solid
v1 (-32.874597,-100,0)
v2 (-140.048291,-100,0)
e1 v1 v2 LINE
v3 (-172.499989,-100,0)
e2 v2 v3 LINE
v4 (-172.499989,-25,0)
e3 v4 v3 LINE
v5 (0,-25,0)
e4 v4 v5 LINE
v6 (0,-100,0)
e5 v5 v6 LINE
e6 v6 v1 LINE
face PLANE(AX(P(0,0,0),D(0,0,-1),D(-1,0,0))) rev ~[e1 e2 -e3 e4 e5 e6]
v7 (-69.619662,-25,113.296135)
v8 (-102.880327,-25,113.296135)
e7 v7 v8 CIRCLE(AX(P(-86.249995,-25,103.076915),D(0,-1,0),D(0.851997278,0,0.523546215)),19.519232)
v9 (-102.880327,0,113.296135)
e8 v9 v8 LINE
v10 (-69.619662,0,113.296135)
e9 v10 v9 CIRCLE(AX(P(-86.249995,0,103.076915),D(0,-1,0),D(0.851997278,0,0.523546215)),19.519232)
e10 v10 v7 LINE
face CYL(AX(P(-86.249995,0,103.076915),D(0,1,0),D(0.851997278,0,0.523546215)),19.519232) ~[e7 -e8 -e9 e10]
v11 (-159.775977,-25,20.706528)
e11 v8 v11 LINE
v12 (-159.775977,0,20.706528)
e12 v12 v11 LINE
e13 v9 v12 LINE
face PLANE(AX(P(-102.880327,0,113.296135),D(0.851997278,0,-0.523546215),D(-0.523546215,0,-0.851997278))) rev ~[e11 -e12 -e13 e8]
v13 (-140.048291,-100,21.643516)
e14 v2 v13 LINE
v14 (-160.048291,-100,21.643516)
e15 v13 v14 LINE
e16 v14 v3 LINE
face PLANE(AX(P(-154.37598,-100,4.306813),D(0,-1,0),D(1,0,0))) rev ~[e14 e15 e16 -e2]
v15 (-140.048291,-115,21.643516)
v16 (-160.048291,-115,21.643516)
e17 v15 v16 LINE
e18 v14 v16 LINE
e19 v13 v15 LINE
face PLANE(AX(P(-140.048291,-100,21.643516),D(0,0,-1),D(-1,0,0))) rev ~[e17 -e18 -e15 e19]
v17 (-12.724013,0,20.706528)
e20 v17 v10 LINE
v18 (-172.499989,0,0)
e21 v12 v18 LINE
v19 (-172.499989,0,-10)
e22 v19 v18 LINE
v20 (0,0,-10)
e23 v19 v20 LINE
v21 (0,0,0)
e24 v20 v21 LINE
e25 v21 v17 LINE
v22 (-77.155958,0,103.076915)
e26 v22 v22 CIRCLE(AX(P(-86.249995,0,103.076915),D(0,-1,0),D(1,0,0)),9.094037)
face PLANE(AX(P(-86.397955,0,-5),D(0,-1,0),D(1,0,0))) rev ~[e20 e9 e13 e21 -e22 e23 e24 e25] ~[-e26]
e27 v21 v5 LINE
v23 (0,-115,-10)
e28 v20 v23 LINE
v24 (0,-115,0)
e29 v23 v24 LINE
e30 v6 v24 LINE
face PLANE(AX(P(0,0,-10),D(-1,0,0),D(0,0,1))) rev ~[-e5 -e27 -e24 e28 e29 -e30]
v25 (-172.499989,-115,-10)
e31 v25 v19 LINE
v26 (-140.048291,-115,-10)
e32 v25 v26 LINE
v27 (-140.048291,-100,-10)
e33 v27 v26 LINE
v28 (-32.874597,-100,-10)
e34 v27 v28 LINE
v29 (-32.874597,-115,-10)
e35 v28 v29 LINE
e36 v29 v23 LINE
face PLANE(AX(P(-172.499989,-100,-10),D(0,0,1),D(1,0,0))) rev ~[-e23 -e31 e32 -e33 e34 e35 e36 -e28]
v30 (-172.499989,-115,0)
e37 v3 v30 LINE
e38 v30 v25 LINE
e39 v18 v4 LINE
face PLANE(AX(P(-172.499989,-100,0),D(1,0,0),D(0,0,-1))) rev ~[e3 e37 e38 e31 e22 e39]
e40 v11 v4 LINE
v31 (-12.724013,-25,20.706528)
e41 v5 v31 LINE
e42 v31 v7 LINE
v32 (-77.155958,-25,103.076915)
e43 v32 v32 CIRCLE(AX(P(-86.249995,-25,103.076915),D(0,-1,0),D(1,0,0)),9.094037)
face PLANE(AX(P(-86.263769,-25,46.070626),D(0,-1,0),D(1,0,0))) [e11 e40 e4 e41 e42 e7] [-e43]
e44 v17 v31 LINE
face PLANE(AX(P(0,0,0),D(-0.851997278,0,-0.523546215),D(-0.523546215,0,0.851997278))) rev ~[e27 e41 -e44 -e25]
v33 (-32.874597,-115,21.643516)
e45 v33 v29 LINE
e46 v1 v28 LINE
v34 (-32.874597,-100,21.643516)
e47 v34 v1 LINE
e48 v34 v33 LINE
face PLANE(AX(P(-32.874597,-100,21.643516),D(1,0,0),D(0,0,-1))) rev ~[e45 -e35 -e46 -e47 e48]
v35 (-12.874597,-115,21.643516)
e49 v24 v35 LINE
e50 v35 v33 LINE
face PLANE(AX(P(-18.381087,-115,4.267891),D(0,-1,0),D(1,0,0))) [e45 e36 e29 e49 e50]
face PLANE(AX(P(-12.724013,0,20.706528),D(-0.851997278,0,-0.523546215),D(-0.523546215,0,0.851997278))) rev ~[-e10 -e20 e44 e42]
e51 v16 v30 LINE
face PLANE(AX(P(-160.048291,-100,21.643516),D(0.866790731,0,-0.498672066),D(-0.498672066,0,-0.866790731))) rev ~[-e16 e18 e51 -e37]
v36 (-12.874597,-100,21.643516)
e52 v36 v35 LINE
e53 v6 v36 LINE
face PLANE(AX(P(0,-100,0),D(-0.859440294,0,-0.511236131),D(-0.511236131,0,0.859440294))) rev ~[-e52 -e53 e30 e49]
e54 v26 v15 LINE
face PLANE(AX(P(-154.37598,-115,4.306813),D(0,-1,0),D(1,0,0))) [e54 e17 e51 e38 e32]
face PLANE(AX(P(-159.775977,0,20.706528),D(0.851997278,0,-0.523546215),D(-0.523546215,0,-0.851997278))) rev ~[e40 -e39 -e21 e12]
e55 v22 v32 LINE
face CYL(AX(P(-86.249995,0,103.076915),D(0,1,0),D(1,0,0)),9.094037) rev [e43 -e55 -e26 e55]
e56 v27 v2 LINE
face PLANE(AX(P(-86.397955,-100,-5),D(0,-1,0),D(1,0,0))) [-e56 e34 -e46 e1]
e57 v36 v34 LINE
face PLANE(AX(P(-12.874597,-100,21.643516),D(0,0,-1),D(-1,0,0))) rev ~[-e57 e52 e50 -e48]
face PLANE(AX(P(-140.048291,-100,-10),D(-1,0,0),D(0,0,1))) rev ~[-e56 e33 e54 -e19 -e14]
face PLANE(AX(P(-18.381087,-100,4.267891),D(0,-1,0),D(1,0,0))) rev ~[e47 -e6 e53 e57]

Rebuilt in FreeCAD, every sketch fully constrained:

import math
import FreeCAD as App
import Part
import Sketcher

V = App.Vector
Q = App.Units.Quantity

doc = App.newDocument("Part")
params = doc.addObject("Spreadsheet::Sheet", "Params")
for row, (alias, value) in enumerate([
    ("pad1_length", "25 mm"),
    ("sketch2_height", "10 mm"),
    ("pad2_length", "100 mm"),
    ("sketch3_width", "20 mm"),
    ("sketch3_height", "10 mm"),
    ("pad3_length", "15 mm"),
], start=1):
    params.set(f"A{row}", alias)
    params.set(f"B{row}", "=" + value)
    params.setAlias(f"B{row}", alias)

body = doc.addObject("PartDesign::Body", "Body")

# Sketch on XZ plane
sketch1 = doc.addObject("Sketcher::SketchObject", "Sketch")
body.addObject(sketch1)
sketch1.AttachmentSupport = (doc.XZ_Plane, [""])
sketch1.MapMode = "FlatFace"
sketch1.addGeometry(Part.LineSegment(V(-13, 21, 0), V(-70, 113, 0)), False)
sketch1.addGeometry(Part.ArcOfCircle(Part.Circle(V(-86, 103, 0), V(0, 0, 1), 20), math.radians(32), math.radians(148)), False)
sketch1.addGeometry(Part.LineSegment(V(-103, 113, 0), V(-160, 21, 0)), False)
sketch1.addGeometry(Part.LineSegment(V(-160, 21, 0), V(-172, 0, 0)), False)
sketch1.addGeometry(Part.LineSegment(V(-172, 0, 0), V(0, 0, 0)), False)
sketch1.addGeometry(Part.LineSegment(V(0, 0, 0), V(-13, 21, 0)), False)
sketch1.addGeometry(Part.Circle(V(-86, 103, 0), V(0, 0, 1), 9), False)
sketch1.addConstraint(Sketcher.Constraint("Tangent", 0, 2, 1, 1))
sketch1.addConstraint(Sketcher.Constraint("Tangent", 1, 2, 2, 1))
sketch1.addConstraint(Sketcher.Constraint("Coincident", 2, 2, 3, 1))
sketch1.addConstraint(Sketcher.Constraint("Coincident", 3, 2, 4, 1))
sketch1.addConstraint(Sketcher.Constraint("Coincident", 4, 2, 5, 1))
sketch1.addConstraint(Sketcher.Constraint("Coincident", 5, 2, 0, 1))
sketch1.addConstraint(Sketcher.Constraint("Horizontal", 4))
sketch1.addConstraint(Sketcher.Constraint("Coincident", 4, 2, -1, 1))
sketch1.addConstraint(Sketcher.Constraint("Coincident", 6, 3, 1, 3))
sketch1.addConstraint(Sketcher.Constraint("Parallel", 2, 3))
sketch1.addConstraint(Sketcher.Constraint("Parallel", 0, 5))
sketch1.addConstraint(Sketcher.Constraint("Horizontal", 0, 2, 1, 2))
sketch1.addConstraint(Sketcher.Constraint("Horizontal", 2, 2, 5, 2))
sketch1.addConstraint(Sketcher.Constraint("Radius", 1, Q("19.519232 mm")))
sketch1.addConstraint(Sketcher.Constraint("Diameter", 6, Q("18.188073 mm")))
sketch1.addConstraint(Sketcher.Constraint("DistanceX", 4, 1, 4, 2, Q("172.499989 mm")))
sketch1.addConstraint(Sketcher.Constraint("DistanceY", 1, 3, 0, 2, Q("10.21922 mm")))
sketch1.addConstraint(Sketcher.Constraint("DistanceX", 2, 2, 1, 2, Q("56.89565 mm")))
pad1 = doc.addObject("PartDesign::Pad", "Pad")
body.addObject(pad1)
pad1.Profile = sketch1
pad1.setExpression("Length", "Params.pad1_length")

# Sketch on XZ plane
sketch2 = doc.addObject("Sketcher::SketchObject", "Sketch001")
body.addObject(sketch2)
sketch2.AttachmentSupport = (doc.XZ_Plane, [""])
sketch2.MapMode = "FlatFace"
sketch2.addGeometry(Part.LineSegment(V(-172, 0, 0), V(-172, -10, 0)), False)
sketch2.addGeometry(Part.LineSegment(V(-172, -10, 0), V(0, -10, 0)), False)
sketch2.addGeometry(Part.LineSegment(V(0, -10, 0), V(0, 0, 0)), False)
sketch2.addGeometry(Part.LineSegment(V(0, 0, 0), V(-172, 0, 0)), False)
sketch2.addConstraint(Sketcher.Constraint("Coincident", 0, 2, 1, 1))
sketch2.addConstraint(Sketcher.Constraint("Coincident", 1, 2, 2, 1))
sketch2.addConstraint(Sketcher.Constraint("Coincident", 2, 2, 3, 1))
sketch2.addConstraint(Sketcher.Constraint("Coincident", 3, 2, 0, 1))
sketch2.addConstraint(Sketcher.Constraint("Vertical", 0))
sketch2.addConstraint(Sketcher.Constraint("Horizontal", 1))
sketch2.addConstraint(Sketcher.Constraint("Vertical", 2))
sketch2.addConstraint(Sketcher.Constraint("Horizontal", 3))
sketch2.addConstraint(Sketcher.Constraint("Coincident", 2, 2, -1, 1))
sketch2.addConstraint(Sketcher.Constraint("DistanceY", 0, 2, 0, 1, Q("10 mm")))
sketch2.addConstraint(Sketcher.Constraint("DistanceX", 1, 1, 1, 2, Q("172.499989 mm")))
sketch2.setExpression("Constraints[9]", "Params.sketch2_height")
pad2 = doc.addObject("PartDesign::Pad", "Pad001")
body.addObject(pad2)
pad2.Profile = sketch2
pad2.setExpression("Length", "Params.pad2_length")

# Sketch on XZ plane
sketch3 = doc.addObject("Sketcher::SketchObject", "Sketch002")
body.addObject(sketch3)
sketch3.AttachmentSupport = (doc.XZ_Plane, [""])
sketch3.MapMode = "FlatFace"
sketch3.AttachmentOffset = App.Placement(V(0, 0, 100), App.Rotation())
sketch3.addGeometry(Part.LineSegment(V(-140, 22, 0), V(-160, 22, 0)), False)
sketch3.addGeometry(Part.LineSegment(V(-160, 22, 0), V(-172, 0, 0)), False)
sketch3.addGeometry(Part.LineSegment(V(-172, 0, 0), V(-172, -10, 0)), False)
sketch3.addGeometry(Part.LineSegment(V(-172, -10, 0), V(-140, -10, 0)), False)
sketch3.addGeometry(Part.LineSegment(V(-140, -10, 0), V(-140, 22, 0)), False)
sketch3.addGeometry(Part.LineSegment(V(0, -10, 0), V(0, 0, 0)), False)
sketch3.addGeometry(Part.LineSegment(V(0, 0, 0), V(-13, 22, 0)), False)
sketch3.addGeometry(Part.LineSegment(V(-13, 22, 0), V(-33, 22, 0)), False)
sketch3.addGeometry(Part.LineSegment(V(-33, 22, 0), V(-33, -10, 0)), False)
sketch3.addGeometry(Part.LineSegment(V(-33, -10, 0), V(0, -10, 0)), False)
sketch3.addConstraint(Sketcher.Constraint("Coincident", 0, 2, 1, 1))
sketch3.addConstraint(Sketcher.Constraint("Coincident", 1, 2, 2, 1))
sketch3.addConstraint(Sketcher.Constraint("Coincident", 2, 2, 3, 1))
sketch3.addConstraint(Sketcher.Constraint("Coincident", 3, 2, 4, 1))
sketch3.addConstraint(Sketcher.Constraint("Coincident", 4, 2, 0, 1))
sketch3.addConstraint(Sketcher.Constraint("Coincident", 5, 2, 6, 1))
sketch3.addConstraint(Sketcher.Constraint("Coincident", 6, 2, 7, 1))
sketch3.addConstraint(Sketcher.Constraint("Coincident", 7, 2, 8, 1))
sketch3.addConstraint(Sketcher.Constraint("Coincident", 8, 2, 9, 1))
sketch3.addConstraint(Sketcher.Constraint("Coincident", 9, 2, 5, 1))
sketch3.addConstraint(Sketcher.Constraint("Horizontal", 0))
sketch3.addConstraint(Sketcher.Constraint("Vertical", 2))
sketch3.addConstraint(Sketcher.Constraint("Horizontal", 3))
sketch3.addConstraint(Sketcher.Constraint("Vertical", 4))
sketch3.addConstraint(Sketcher.Constraint("Vertical", 5))
sketch3.addConstraint(Sketcher.Constraint("Horizontal", 7))
sketch3.addConstraint(Sketcher.Constraint("Vertical", 8))
sketch3.addConstraint(Sketcher.Constraint("Horizontal", 9))
sketch3.addConstraint(Sketcher.Constraint("Coincident", 5, 2, -1, 1))
sketch3.addConstraint(Sketcher.Constraint("PointOnObject", 1, 2, -1))
sketch3.addConstraint(Sketcher.Constraint("Horizontal", 4, 2, 6, 2))
sketch3.addConstraint(Sketcher.Constraint("Horizontal", 3, 2, 8, 2))
sketch3.addConstraint(Sketcher.Constraint("Equal", 0, 7))
sketch3.addConstraint(Sketcher.Constraint("DistanceX", 0, 2, 0, 1, Q("20 mm")))
sketch3.addConstraint(Sketcher.Constraint("DistanceY", 2, 2, 2, 1, Q("10 mm")))
sketch3.addConstraint(Sketcher.Constraint("DistanceX", 3, 1, 3, 2, Q("32.451698 mm")))
sketch3.addConstraint(Sketcher.Constraint("Distance", 6, Q("25.183269 mm")))
sketch3.addConstraint(Sketcher.Constraint("DistanceX", 9, 1, 9, 2, Q("32.874597 mm")))
sketch3.addConstraint(Sketcher.Constraint("DistanceX", 0, 2, -1, 1, Q("160.048291 mm")))
sketch3.setExpression("Constraints[23]", "Params.sketch3_width")
sketch3.setExpression("Constraints[24]", "Params.sketch3_height")
pad3 = doc.addObject("PartDesign::Pad", "Pad002")
body.addObject(pad3)
pad3.Profile = sketch3
pad3.setExpression("Length", "Params.pad3_length")

doc.recompute()
